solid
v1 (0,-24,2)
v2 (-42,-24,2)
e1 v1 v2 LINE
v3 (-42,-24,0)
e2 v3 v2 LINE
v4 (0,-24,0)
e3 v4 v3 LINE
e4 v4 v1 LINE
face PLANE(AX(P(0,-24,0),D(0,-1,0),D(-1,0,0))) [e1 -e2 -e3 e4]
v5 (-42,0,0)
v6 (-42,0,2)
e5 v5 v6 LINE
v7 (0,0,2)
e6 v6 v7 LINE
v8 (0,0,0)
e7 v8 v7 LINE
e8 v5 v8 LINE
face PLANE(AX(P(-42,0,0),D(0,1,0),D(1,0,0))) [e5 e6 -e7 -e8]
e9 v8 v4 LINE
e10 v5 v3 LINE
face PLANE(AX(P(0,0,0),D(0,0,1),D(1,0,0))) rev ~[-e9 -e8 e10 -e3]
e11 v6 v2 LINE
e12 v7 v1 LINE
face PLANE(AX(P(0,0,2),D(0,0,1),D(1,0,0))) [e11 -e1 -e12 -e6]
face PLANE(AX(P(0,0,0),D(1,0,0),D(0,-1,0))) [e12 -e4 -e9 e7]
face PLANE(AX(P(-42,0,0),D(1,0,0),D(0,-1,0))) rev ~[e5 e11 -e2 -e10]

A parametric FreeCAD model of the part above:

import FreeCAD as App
import Part
import Sketcher
Q = App.Units.Quantity


def add_polygon(sketch, points):
    """Adds a closed chain of lines whose ends are joined by coincident constraints."""
    first, n = sketch.GeometryCount, len(points)
    for a, b in zip(points, points[1:] + points[:1]):
        sketch.addGeometry(Part.LineSegment(App.Vector(*a, 0), App.Vector(*b, 0)), False)
    for i in range(n):
        sketch.addConstraint(Sketcher.Constraint("Coincident", first + i, 2, first + (i + 1) % n, 1))

doc = App.newDocument("Part")
body = doc.addObject("PartDesign::Body", "Body")

# Sketch on XY plane
sketch1 = body.newObject("Sketcher::SketchObject", "Sketch")
sketch1.AttachmentSupport = (doc.getObject("XY_Plane"), [""])
sketch1.MapMode = "FlatFace"
add_polygon(sketch1, [(0, 0), (-42, 0), (-42, -24), (0, -24)])  # lines 0-3
sketch1.addConstraint(Sketcher.Constraint("Horizontal", 0))
sketch1.addConstraint(Sketcher.Constraint("Vertical", 1))
sketch1.addConstraint(Sketcher.Constraint("Horizontal", 2))
sketch1.addConstraint(Sketcher.Constraint("Vertical", 3))
sketch1.addConstraint(Sketcher.Constraint("Coincident", 3, 2, -1, 1))
sketch1.addConstraint(Sketcher.Constraint("DistanceX", 0, 2, 0, 1, Q("42 mm")))
sketch1.addConstraint(Sketcher.Constraint("DistanceY", 1, 2, 1, 1, Q("24 mm")))
pad1 = body.newObject("PartDesign::Pad", "Pad")
pad1.Profile = sketch1
pad1.Length = 2

doc.recompute()
